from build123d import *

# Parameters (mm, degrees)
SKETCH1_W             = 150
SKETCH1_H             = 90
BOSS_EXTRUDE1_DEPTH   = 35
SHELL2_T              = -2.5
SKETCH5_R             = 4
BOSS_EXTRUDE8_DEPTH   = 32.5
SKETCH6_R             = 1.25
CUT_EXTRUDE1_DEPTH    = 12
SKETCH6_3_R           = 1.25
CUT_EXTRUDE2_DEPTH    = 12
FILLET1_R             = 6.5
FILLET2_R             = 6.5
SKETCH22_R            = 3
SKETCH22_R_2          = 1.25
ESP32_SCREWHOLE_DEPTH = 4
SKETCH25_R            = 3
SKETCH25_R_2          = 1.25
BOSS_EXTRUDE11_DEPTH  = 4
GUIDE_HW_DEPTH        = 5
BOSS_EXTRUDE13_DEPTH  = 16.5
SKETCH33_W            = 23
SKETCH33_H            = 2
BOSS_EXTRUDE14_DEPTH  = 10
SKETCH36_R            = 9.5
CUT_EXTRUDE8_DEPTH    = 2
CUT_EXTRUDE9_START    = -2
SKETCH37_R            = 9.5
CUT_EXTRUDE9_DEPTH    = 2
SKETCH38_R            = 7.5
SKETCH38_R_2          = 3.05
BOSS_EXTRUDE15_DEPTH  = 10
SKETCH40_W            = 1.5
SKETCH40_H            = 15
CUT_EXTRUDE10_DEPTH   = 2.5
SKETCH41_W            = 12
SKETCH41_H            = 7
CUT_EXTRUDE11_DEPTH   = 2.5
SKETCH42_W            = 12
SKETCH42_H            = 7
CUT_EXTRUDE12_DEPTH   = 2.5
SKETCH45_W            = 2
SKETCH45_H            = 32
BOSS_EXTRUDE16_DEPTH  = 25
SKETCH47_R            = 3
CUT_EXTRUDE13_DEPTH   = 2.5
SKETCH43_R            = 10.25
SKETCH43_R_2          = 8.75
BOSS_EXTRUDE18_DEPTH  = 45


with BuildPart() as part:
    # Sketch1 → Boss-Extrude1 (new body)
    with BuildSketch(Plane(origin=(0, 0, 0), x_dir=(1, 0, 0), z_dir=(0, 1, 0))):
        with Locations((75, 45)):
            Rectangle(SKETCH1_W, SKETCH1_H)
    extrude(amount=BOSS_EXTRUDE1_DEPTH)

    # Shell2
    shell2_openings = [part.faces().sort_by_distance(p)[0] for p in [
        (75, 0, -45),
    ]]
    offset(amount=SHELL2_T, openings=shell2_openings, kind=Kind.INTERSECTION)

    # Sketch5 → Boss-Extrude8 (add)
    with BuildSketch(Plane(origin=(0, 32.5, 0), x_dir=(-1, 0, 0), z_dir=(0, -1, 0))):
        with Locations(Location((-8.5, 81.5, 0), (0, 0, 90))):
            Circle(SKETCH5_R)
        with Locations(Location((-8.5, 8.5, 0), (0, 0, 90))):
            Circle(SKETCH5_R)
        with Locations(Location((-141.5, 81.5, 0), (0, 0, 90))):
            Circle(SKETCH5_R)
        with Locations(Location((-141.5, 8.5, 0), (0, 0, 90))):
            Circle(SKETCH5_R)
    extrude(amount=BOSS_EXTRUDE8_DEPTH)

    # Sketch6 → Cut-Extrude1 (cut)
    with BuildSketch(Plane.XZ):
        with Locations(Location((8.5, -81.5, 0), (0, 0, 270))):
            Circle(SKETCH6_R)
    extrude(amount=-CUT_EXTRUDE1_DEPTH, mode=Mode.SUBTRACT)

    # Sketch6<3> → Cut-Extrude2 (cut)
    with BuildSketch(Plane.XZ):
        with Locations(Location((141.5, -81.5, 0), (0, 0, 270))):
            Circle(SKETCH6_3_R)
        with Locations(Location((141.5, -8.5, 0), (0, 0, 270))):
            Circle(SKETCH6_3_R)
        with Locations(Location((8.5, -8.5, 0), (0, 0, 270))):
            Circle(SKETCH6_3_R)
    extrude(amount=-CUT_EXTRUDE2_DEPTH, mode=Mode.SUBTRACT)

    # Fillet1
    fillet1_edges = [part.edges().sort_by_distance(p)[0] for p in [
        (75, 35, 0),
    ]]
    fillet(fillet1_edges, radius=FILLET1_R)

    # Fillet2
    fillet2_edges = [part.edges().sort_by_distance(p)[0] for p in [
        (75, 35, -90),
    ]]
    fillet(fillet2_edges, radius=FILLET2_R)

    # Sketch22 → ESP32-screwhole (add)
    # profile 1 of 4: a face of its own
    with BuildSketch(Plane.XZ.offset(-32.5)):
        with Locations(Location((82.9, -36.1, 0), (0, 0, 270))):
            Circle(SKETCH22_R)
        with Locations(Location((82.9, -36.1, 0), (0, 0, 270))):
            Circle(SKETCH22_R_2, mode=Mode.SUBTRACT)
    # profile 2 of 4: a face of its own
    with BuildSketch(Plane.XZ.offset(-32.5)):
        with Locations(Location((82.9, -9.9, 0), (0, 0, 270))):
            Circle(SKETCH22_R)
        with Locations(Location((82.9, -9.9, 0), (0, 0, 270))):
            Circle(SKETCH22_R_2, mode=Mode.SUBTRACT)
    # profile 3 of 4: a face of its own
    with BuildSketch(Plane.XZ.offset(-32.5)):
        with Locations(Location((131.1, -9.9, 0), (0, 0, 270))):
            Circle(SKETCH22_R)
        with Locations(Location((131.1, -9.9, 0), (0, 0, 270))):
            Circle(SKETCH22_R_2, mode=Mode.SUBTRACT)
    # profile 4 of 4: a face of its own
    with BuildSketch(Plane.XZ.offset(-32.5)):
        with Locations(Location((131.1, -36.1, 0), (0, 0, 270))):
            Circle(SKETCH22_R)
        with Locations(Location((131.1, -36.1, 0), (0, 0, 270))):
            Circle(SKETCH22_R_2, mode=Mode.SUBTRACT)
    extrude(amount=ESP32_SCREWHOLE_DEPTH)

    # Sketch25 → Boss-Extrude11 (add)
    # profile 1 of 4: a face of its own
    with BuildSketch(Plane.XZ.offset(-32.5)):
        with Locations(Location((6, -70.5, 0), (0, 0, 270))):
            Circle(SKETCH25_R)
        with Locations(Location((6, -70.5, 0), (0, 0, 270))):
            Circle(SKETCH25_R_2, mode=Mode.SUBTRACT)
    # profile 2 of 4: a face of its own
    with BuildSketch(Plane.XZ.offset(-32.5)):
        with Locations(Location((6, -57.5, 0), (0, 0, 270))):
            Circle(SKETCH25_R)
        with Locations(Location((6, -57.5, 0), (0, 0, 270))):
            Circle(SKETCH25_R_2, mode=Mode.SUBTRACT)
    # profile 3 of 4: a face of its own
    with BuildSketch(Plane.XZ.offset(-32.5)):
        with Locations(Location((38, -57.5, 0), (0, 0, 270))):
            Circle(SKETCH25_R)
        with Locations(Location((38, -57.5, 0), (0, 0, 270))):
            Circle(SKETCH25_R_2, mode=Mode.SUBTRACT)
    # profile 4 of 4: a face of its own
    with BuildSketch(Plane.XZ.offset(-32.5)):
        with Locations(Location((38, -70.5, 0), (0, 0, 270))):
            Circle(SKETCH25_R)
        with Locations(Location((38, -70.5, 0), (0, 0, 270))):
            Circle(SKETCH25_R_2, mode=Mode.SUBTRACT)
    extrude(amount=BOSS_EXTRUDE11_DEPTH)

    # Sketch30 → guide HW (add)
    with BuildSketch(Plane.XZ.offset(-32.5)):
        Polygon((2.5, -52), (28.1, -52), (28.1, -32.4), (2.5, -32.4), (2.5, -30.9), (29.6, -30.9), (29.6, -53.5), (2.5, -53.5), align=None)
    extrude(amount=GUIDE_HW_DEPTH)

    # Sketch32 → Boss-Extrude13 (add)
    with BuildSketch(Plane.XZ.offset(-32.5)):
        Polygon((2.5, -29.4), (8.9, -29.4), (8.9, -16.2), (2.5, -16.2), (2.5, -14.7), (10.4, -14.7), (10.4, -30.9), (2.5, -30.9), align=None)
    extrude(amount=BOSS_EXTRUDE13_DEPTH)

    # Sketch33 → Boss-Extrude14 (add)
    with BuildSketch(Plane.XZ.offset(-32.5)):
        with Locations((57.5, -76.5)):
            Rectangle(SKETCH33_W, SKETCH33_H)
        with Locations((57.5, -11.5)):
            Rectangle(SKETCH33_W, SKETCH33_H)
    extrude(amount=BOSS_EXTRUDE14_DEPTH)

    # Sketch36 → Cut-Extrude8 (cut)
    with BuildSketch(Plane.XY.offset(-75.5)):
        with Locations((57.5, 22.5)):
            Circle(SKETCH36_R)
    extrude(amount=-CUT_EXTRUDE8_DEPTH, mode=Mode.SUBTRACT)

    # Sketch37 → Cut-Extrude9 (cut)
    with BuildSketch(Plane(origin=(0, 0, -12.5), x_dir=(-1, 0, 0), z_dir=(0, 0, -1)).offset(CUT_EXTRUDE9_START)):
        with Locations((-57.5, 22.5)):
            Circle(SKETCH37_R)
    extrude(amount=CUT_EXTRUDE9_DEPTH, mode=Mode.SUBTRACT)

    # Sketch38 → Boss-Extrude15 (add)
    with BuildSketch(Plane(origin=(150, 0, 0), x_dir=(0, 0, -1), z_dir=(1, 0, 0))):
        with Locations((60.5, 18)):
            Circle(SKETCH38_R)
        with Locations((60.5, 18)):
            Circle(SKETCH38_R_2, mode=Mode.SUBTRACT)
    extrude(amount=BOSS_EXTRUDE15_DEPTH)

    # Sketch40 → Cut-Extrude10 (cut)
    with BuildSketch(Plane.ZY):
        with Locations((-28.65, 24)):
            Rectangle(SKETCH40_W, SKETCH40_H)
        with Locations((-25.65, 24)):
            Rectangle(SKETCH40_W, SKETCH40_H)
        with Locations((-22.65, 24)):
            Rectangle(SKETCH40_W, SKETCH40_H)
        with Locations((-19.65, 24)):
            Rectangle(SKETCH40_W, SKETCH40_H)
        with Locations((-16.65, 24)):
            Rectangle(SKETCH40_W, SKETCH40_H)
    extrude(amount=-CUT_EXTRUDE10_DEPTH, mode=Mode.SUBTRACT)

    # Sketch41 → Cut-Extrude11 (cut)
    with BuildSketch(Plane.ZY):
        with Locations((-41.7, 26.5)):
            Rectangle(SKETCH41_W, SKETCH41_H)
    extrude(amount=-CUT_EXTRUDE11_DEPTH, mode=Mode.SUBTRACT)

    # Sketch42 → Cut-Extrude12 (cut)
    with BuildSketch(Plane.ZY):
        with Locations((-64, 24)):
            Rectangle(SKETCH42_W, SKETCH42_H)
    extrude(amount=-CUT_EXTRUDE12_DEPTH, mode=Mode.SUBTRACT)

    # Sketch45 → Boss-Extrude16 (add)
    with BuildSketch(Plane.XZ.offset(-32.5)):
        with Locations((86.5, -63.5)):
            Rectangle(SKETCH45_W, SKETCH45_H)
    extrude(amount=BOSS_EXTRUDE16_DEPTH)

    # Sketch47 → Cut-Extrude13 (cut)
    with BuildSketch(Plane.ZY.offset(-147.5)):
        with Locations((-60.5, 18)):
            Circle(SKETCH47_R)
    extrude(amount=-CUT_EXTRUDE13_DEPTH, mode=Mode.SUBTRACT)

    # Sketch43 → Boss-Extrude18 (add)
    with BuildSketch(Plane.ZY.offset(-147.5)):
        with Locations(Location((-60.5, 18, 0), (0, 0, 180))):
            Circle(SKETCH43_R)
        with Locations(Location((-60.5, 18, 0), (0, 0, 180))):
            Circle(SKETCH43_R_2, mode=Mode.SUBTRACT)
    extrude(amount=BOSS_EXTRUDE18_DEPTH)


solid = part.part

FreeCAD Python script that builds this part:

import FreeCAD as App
import Part
import Sketcher

V = App.Vector
Q = App.Units.Quantity


def edges_at(feature, points):
    """Names of the edges that pass closest to the given points."""
    edges = feature.Shape.Edges
    near = lambda p: min(range(len(edges)), key=lambda i: edges[i].distToShape(Part.Vertex(*p))[0])
    return sorted({f"Edge{near(p) + 1}" for p in points})


def faces_at(feature, points):
    """Names of the faces that lie closest to the given points."""
    faces = feature.Shape.Faces
    near = lambda p: min(range(len(faces)), key=lambda i: faces[i].distToShape(Part.Vertex(*p))[0])
    return sorted({f"Face{near(p) + 1}" for p in points})


def add_polygon(sketch, points):
    """Adds a closed chain of lines whose ends are joined by coincident constraints."""
    first, n = sketch.GeometryCount, len(points)
    for a, b in zip(points, points[1:] + points[:1]):
        sketch.addGeometry(Part.LineSegment(App.Vector(*a, 0), App.Vector(*b, 0)), False)
    for i in range(n):
        sketch.addConstraint(Sketcher.Constraint("Coincident", first + i, 2, first + (i + 1) % n, 1))

doc = App.newDocument("Part")
params = doc.addObject("Spreadsheet::Sheet", "Params")
for row, (alias, value) in enumerate([
    ("sketch1_width", "150 mm"),
    ("sketch1_height", "90 mm"),
    ("pad1_length", "35 mm"),
    ("thickness_wall", "2.5 mm"),
    ("sketch2_diameter", "8 mm"),
    ("pad2_length", "32.5 mm"),
    ("sketch3_diameter", "2.5 mm"),
    ("pocket1_length", "12 mm"),
    ("sketch4_diameter", "2.5 mm"),
    ("pocket2_length", "12 mm"),
    ("fillet_radius", "6.5 mm"),
    ("fillet2_radius", "6.5 mm"),
    ("sketch5_diameter", "6 mm"),
    ("sketch5_diameter2", "2.5 mm"),
    ("pad3_length", "4 mm"),
    ("sketch6_diameter", "6 mm"),
    ("sketch6_diameter2", "2.5 mm"),
    ("pad4_length", "4 mm"),
    ("sketch7_width", "25.6 mm"),
    ("sketch7_width2", "27.1 mm"),
    ("sketch7_height", "1.5 mm"),
    ("sketch7_height2", "22.6 mm"),
    ("pad5_length", "5 mm"),
    ("sketch8_width", "6.4 mm"),
    ("sketch8_width2", "7.9 mm"),
    ("sketch8_height", "1.5 mm"),
    ("sketch8_height2", "16.2 mm"),
    ("pad6_length", "16.5 mm"),
    ("sketch9_width", "23 mm"),
    ("sketch9_height", "2 mm"),
    ("pad7_length", "10 mm"),
    ("sketch10_diameter", "19 mm"),
    ("pocket3_length", "2 mm"),
    ("sketch11_diameter", "19 mm"),
    ("pocket4_length", "2 mm"),
    ("sketch12_diameter", "15 mm"),
    ("sketch12_diameter2", "6.1 mm"),
    ("pad8_length", "10 mm"),
    ("sketch13_width", "15 mm"),
    ("sketch13_height", "1.5 mm"),
    ("pocket5_length", "2.5 mm"),
    ("sketch14_width", "7 mm"),
    ("sketch14_height", "12 mm"),
    ("pocket6_length", "2.5 mm"),
    ("sketch15_width", "7 mm"),
    ("sketch15_height", "12 mm"),
    ("pocket7_length", "2.5 mm"),
    ("sketch16_width", "2 mm"),
    ("sketch16_height", "32 mm"),
    ("pad9_length", "25 mm"),
    ("sketch17_diameter", "6 mm"),
    ("pocket8_length", "2.5 mm"),
    ("sketch18_diameter", "20.5 mm"),
    ("sketch18_diameter2", "17.5 mm"),
    ("pad10_length", "45 mm"),
], start=1):
    params.set(f"A{row}", alias)
    params.set(f"B{row}", "=" + value)
    params.setAlias(f"B{row}", alias)

body = doc.addObject("PartDesign::Body", "Body")

# Sketch on XZ plane
sketch1 = body.newObject("Sketcher::SketchObject", "Sketch")
sketch1.AttachmentSupport = (doc.getObject("XZ_Plane"), [""])
sketch1.MapMode = "FlatFace"
add_polygon(sketch1, [(0, -90), (0, 0), (150, 0), (150, -90)])  # lines 0-3
sketch1.addConstraint(Sketcher.Constraint("Vertical", 0))
sketch1.addConstraint(Sketcher.Constraint("Horizontal", 1))
sketch1.addConstraint(Sketcher.Constraint("Vertical", 2))
sketch1.addConstraint(Sketcher.Constraint("Horizontal", 3))
sketch1.addConstraint(Sketcher.Constraint("Coincident", 0, 2, -1, 1))
sketch1.addConstraint(Sketcher.Constraint("DistanceX", 1, 1, 1, 2, Q("150 mm")))
sketch1.addConstraint(Sketcher.Constraint("DistanceY", 0, 1, 0, 2, Q("90 mm")))
sketch1.setExpression("Constraints[9]", "Params.sketch1_width")
sketch1.setExpression("Constraints[10]", "Params.sketch1_height")
pad1 = body.newObject("PartDesign::Pad", "Pad")
pad1.Profile = sketch1
pad1.setExpression("Length", "Params.pad1_length")
pad1.Reversed = True
doc.recompute()

thickness = body.newObject("PartDesign::Thickness", "Thickness")
thickness.Base = (pad1, faces_at(pad1, [(75, 0, -45)]))
thickness.setExpression("Value", "Params.thickness_wall")
thickness.Reversed = True
thickness.Join = "Intersection"

# Sketch on XZ plane
sketch2 = body.newObject("Sketcher::SketchObject", "Sketch001")
sketch2.AttachmentSupport = (doc.getObject("XZ_Plane"), [""])
sketch2.MapMode = "FlatFace"
sketch2.AttachmentOffset = App.Placement(V(0, 0, -32.5), App.Rotation())
sketch2.addGeometry(Part.Circle(V(8.5, -81.5, 0), V(0, 0, 1), 4), False)
sketch2.addGeometry(Part.Circle(V(8.5, -8.5, 0), V(0, 0, 1), 4), False)
sketch2.addGeometry(Part.Circle(V(141.5, -81.5, 0), V(0, 0, 1), 4), False)
sketch2.addGeometry(Part.Circle(V(141.5, -8.5, 0), V(0, 0, 1), 4), False)
sketch2.addConstraint(Sketcher.Constraint("Equal", 0, 1))
sketch2.addConstraint(Sketcher.Constraint("Equal", 1, 2))
sketch2.addConstraint(Sketcher.Constraint("Equal", 2, 3))
sketch2.addConstraint(Sketcher.Constraint("Horizontal", 0, 3, 2, 3))
sketch2.addConstraint(Sketcher.Constraint("Horizontal", 1, 3, 3, 3))
sketch2.addConstraint(Sketcher.Constraint("Vertical", 0, 3, 1, 3))
sketch2.addConstraint(Sketcher.Constraint("Vertical", 2, 3, 3, 3))
sketch2.addConstraint(Sketcher.Constraint("Diameter", 0, Q("8 mm")))
sketch2.addConstraint(Sketcher.Constraint("DistanceY", 0, 3, 1, 3, Q("73 mm")))
sketch2.addConstraint(Sketcher.Constraint("DistanceX", 0, 3, 2, 3, Q("133 mm")))
sketch2.addConstraint(Sketcher.Constraint("DistanceX", -1, 1, 0, 3, Q("8.5 mm")))
sketch2.addConstraint(Sketcher.Constraint("DistanceY", 0, 3, -1, 1, Q("81.5 mm")))
sketch2.setExpression("Constraints[7]", "Params.sketch2_diameter")
pad2 = body.newObject("PartDesign::Pad", "Pad001")
pad2.Profile = sketch2
pad2.setExpression("Length", "Params.pad2_length")

# Sketch on XZ plane
sketch3 = body.newObject("Sketcher::SketchObject", "Sketch002")
sketch3.AttachmentSupport = (doc.getObject("XZ_Plane"), [""])
sketch3.MapMode = "FlatFace"
sketch3.addGeometry(Part.Circle(V(8.5, -81.5, 0), V(0, 0, 1), 1.2), False)
sketch3.addConstraint(Sketcher.Constraint("Diameter", 0, Q("2.5 mm")))
sketch3.addConstraint(Sketcher.Constraint("DistanceX", -1, 1, 0, 3, Q("8.5 mm")))
sketch3.addConstraint(Sketcher.Constraint("DistanceY", 0, 3, -1, 1, Q("81.5 mm")))
sketch3.setExpression("Constraints[0]", "Params.sketch3_diameter")
pocket1 = body.newObject("PartDesign::Pocket", "Pocket")
pocket1.Profile = sketch3
pocket1.setExpression("Length", "Params.pocket1_length")

# Sketch on XZ plane
sketch4 = body.newObject("Sketcher::SketchObject", "Sketch003")
sketch4.AttachmentSupport = (doc.getObject("XZ_Plane"), [""])
sketch4.MapMode = "FlatFace"
sketch4.addGeometry(Part.Circle(V(141.5, -81.5, 0), V(0, 0, 1), 1.2), False)
sketch4.addGeometry(Part.Circle(V(141.5, -8.5, 0), V(0, 0, 1), 1.2), False)
sketch4.addGeometry(Part.Circle(V(8.5, -8.5, 0), V(0, 0, 1), 1.2), False)
sketch4.addConstraint(Sketcher.Constraint("Equal", 0, 1))
sketch4.addConstraint(Sketcher.Constraint("Equal", 1, 2))
sketch4.addConstraint(Sketcher.Constraint("Horizontal", 1, 3, 2, 3))
sketch4.addConstraint(Sketcher.Constraint("Vertical", 0, 3, 1, 3))
sketch4.addConstraint(Sketcher.Constraint("Diameter", 0, Q("2.5 mm")))
sketch4.addConstraint(Sketcher.Constraint("DistanceY", 0, 3, 1, 3, Q("73 mm")))
sketch4.addConstraint(Sketcher.Constraint("DistanceX", 2, 3, 1, 3, Q("133 mm")))
sketch4.addConstraint(Sketcher.Constraint("DistanceX", -1, 1, 0, 3, Q("141.5 mm")))
sketch4.addConstraint(Sketcher.Constraint("DistanceY", 0, 3, -1, 1, Q("81.5 mm")))
sketch4.setExpression("Constraints[4]", "Params.sketch4_diameter")
pocket2 = body.newObject("PartDesign::Pocket", "Pocket001")
pocket2.Profile = sketch4
pocket2.setExpression("Length", "Params.pocket2_length")
doc.recompute()

fillet = body.newObject("PartDesign::Fillet", "Fillet")
fillet.Base = (pocket2, edges_at(pocket2, [(75, 35, 0)]))
fillet.setExpression("Radius", "Params.fillet_radius")
doc.recompute()

fillet2 = body.newObject("PartDesign::Fillet", "Fillet001")
fillet2.Base = (fillet, edges_at(fillet, [(75, 35, -90)]))
fillet2.setExpression("Radius", "Params.fillet2_radius")

# Sketch on XZ plane
sketch5 = body.newObject("Sketcher::SketchObject", "Sketch004")
sketch5.AttachmentSupport = (doc.getObject("XZ_Plane"), [""])
sketch5.MapMode = "FlatFace"
sketch5.AttachmentOffset = App.Placement(V(0, 0, -32.5), App.Rotation())
sketch5.addGeometry(Part.Circle(V(82.9, -36.1, 0), V(0, 0, 1), 3), False)
sketch5.addGeometry(Part.Circle(V(82.9, -36.1, 0), V(0, 0, 1), 1.2), False)
sketch5.addGeometry(Part.Circle(V(82.9, -9.9, 0), V(0, 0, 1), 3), False)
sketch5.addGeometry(Part.Circle(V(82.9, -9.9, 0), V(0, 0, 1), 1.2), False)
sketch5.addGeometry(Part.Circle(V(131.1, -9.9, 0), V(0, 0, 1), 3), False)
sketch5.addGeometry(Part.Circle(V(131.1, -9.9, 0), V(0, 0, 1), 1.2), False)
sketch5.addGeometry(Part.Circle(V(131.1, -36.1, 0), V(0, 0, 1), 3), False)
sketch5.addGeometry(Part.Circle(V(131.1, -36.1, 0), V(0, 0, 1), 1.2), False)
sketch5.addConstraint(Sketcher.Constraint("Coincident", 1, 3, 0, 3))
sketch5.addConstraint(Sketcher.Constraint("Coincident", 3, 3, 2, 3))
sketch5.addConstraint(Sketcher.Constraint("Coincident", 5, 3, 4, 3))
sketch5.addConstraint(Sketcher.Constraint("Coincident", 7, 3, 6, 3))
sketch5.addConstraint(Sketcher.Constraint("Equal", 0, 2))
sketch5.addConstraint(Sketcher.Constraint("Equal", 1, 3))
sketch5.addConstraint(Sketcher.Constraint("Equal", 2, 4))
sketch5.addConstraint(Sketcher.Constraint("Equal", 3, 5))
sketch5.addConstraint(Sketcher.Constraint("Equal", 4, 6))
sketch5.addConstraint(Sketcher.Constraint("Equal", 5, 7))
sketch5.addConstraint(Sketcher.Constraint("Horizontal", 3, 3, 4, 3))
sketch5.addConstraint(Sketcher.Constraint("Horizontal", 1, 3, 6, 3))
sketch5.addConstraint(Sketcher.Constraint("Vertical", 1, 3, 2, 3))
sketch5.addConstraint(Sketcher.Constraint("Vertical", 5, 3, 6, 3))
sketch5.addConstraint(Sketcher.Constraint("Diameter", 0, Q("6 mm")))
sketch5.addConstraint(Sketcher.Constraint("Diameter", 1, Q("2.5 mm")))
sketch5.addConstraint(Sketcher.Constraint("DistanceX", -1, 1, 0, 3, Q("82.9 mm")))
sketch5.addConstraint(Sketcher.Constraint("DistanceY", 0, 3, -1, 1, Q("36.1 mm")))
sketch5.addConstraint(Sketcher.Constraint("DistanceY", 2, 3, -1, 1, Q("9.9 mm")))
sketch5.addConstraint(Sketcher.Constraint("DistanceX", -1, 1, 4, 3, Q("131.1 mm")))
sketch5.setExpression("Constraints[14]", "Params.sketch5_diameter")
sketch5.setExpression("Constraints[15]", "Params.sketch5_diameter2")
pad3 = body.newObject("PartDesign::Pad", "Pad002")
pad3.Profile = sketch5
pad3.setExpression("Length", "Params.pad3_length")

# Sketch on XZ plane
sketch6 = body.newObject("Sketcher::SketchObject", "Sketch005")
sketch6.AttachmentSupport = (doc.getObject("XZ_Plane"), [""])
sketch6.MapMode = "FlatFace"
sketch6.AttachmentOffset = App.Placement(V(0, 0, -32.5), App.Rotation())
sketch6.addGeometry(Part.Circle(V(6, -70.5, 0), V(0, 0, 1), 3), False)
sketch6.addGeometry(Part.Circle(V(6, -70.5, 0), V(0, 0, 1), 1.2), False)
sketch6.addGeometry(Part.Circle(V(6, -57.5, 0), V(0, 0, 1), 3), False)
sketch6.addGeometry(Part.Circle(V(6, -57.5, 0), V(0, 0, 1), 1.2), False)
sketch6.addGeometry(Part.Circle(V(38, -57.5, 0), V(0, 0, 1), 3), False)
sketch6.addGeometry(Part.Circle(V(38, -57.5, 0), V(0, 0, 1), 1.2), False)
sketch6.addGeometry(Part.Circle(V(38, -70.5, 0), V(0, 0, 1), 3), False)
sketch6.addGeometry(Part.Circle(V(38, -70.5, 0), V(0, 0, 1), 1.2), False)
sketch6.addConstraint(Sketcher.Constraint("Coincident", 1, 3, 0, 3))
sketch6.addConstraint(Sketcher.Constraint("Coincident", 3, 3, 2, 3))
sketch6.addConstraint(Sketcher.Constraint("Coincident", 5, 3, 4, 3))
sketch6.addConstraint(Sketcher.Constraint("Coincident", 7, 3, 6, 3))
sketch6.addConstraint(Sketcher.Constraint("Equal", 0, 2))
sketch6.addConstraint(Sketcher.Constraint("Equal", 1, 3))
sketch6.addConstraint(Sketcher.Constraint("Equal", 2, 4))
sketch6.addConstraint(Sketcher.Constraint("Equal", 3, 5))
sketch6.addConstraint(Sketcher.Constraint("Equal", 4, 6))
sketch6.addConstraint(Sketcher.Constraint("Equal", 5, 7))
sketch6.addConstraint(Sketcher.Constraint("Horizontal", 3, 3, 4, 3))
sketch6.addConstraint(Sketcher.Constraint("Horizontal", 1, 3, 6, 3))
sketch6.addConstraint(Sketcher.Constraint("Vertical", 1, 3, 2, 3))
sketch6.addConstraint(Sketcher.Constraint("Vertical", 5, 3, 6, 3))
sketch6.addConstraint(Sketcher.Constraint("Diameter", 0, Q("6 mm")))
sketch6.addConstraint(Sketcher.Constraint("Diameter", 1, Q("2.5 mm")))
sketch6.addConstraint(Sketcher.Constraint("DistanceX", -1, 1, 0, 3, Q("6 mm")))
sketch6.addConstraint(Sketcher.Constraint("DistanceX", -1, 1, 4, 3, Q("38 mm")))
sketch6.addConstraint(Sketcher.Constraint("DistanceY", 0, 3, 2, 3, Q("13 mm")))
sketch6.addConstraint(Sketcher.Constraint("DistanceY", 0, 3, -1, 1, Q("70.5 mm")))
sketch6.setExpression("Constraints[14]", "Params.sketch6_diameter")
sketch6.setExpression("Constraints[15]", "Params.sketch6_diameter2")
pad4 = body.newObject("PartDesign::Pad", "Pad003")
pad4.Profile = sketch6
pad4.setExpression("Length", "Params.pad4_length")

# Sketch on XZ plane
sketch7 = body.newObject("Sketcher::SketchObject", "Sketch006")
sketch7.AttachmentSupport = (doc.getObject("XZ_Plane"), [""])
sketch7.MapMode = "FlatFace"
sketch7.AttachmentOffset = App.Placement(V(0, 0, -32.5), App.Rotation())
add_polygon(sketch7, [(28.1, -52), (2.5, -52), (2.5, -53.5), (29.6, -53.5), (29.6, -30.9), (2.5, -30.9), (2.5, -32.4), (28.1, -32.4)])  # lines 0-7
sketch7.addConstraint(Sketcher.Constraint("Horizontal", 0))
sketch7.addConstraint(Sketcher.Constraint("Vertical", 1))
sketch7.addConstraint(Sketcher.Constraint("Horizontal", 2))
sketch7.addConstraint(Sketcher.Constraint("Vertical", 3))
sketch7.addConstraint(Sketcher.Constraint("Horizontal", 4))
sketch7.addConstraint(Sketcher.Constraint("Vertical", 5))
sketch7.addConstraint(Sketcher.Constraint("Horizontal", 6))
sketch7.addConstraint(Sketcher.Constraint("Vertical", 7))
sketch7.addConstraint(Sketcher.Constraint("Vertical", 1, 2, 4, 2))
sketch7.addConstraint(Sketcher.Constraint("Equal", 1, 5))
sketch7.addConstraint(Sketcher.Constraint("DistanceX", 0, 2, 0, 1, Q("25.6 mm")))
sketch7.addConstraint(Sketcher.Constraint("DistanceX", 2, 1, 2, 2, Q("27.1 mm")))
sketch7.addConstraint(Sketcher.Constraint("DistanceY", 1, 2, 1, 1, Q("1.5 mm")))
sketch7.addConstraint(Sketcher.Constraint("DistanceY", 3, 1, 3, 2, Q("22.6 mm")))
sketch7.addConstraint(Sketcher.Constraint("DistanceY", 0, 2, -1, 1, Q("52 mm")))
sketch7.addConstraint(Sketcher.Constraint("DistanceX", -1, 1, 0, 2, Q("2.5 mm")))
sketch7.setExpression("Constraints[18]", "Params.sketch7_width")
sketch7.setExpression("Constraints[19]", "Params.sketch7_width2")
sketch7.setExpression("Constraints[20]", "Params.sketch7_height")
sketch7.setExpression("Constraints[21]", "Params.sketch7_height2")
pad5 = body.newObject("PartDesign::Pad", "Pad004")
pad5.Profile = sketch7
pad5.setExpression("Length", "Params.pad5_length")

# Sketch on XZ plane
sketch8 = body.newObject("Sketcher::SketchObject", "Sketch007")
sketch8.AttachmentSupport = (doc.getObject("XZ_Plane"), [""])
sketch8.MapMode = "FlatFace"
sketch8.AttachmentOffset = App.Placement(V(0, 0, -32.5), App.Rotation())
add_polygon(sketch8, [(8.9, -29.4), (2.5, -29.4), (2.5, -30.9), (10.4, -30.9), (10.4, -14.7), (2.5, -14.7), (2.5, -16.2), (8.9, -16.2)])  # lines 0-7
sketch8.addConstraint(Sketcher.Constraint("Horizontal", 0))
sketch8.addConstraint(Sketcher.Constraint("Vertical", 1))
sketch8.addConstraint(Sketcher.Constraint("Horizontal", 2))
sketch8.addConstraint(Sketcher.Constraint("Vertical", 3))
sketch8.addConstraint(Sketcher.Constraint("Horizontal", 4))
sketch8.addConstraint(Sketcher.Constraint("Vertical", 5))
sketch8.addConstraint(Sketcher.Constraint("Horizontal", 6))
sketch8.addConstraint(Sketcher.Constraint("Vertical", 7))
sketch8.addConstraint(Sketcher.Constraint("Vertical", 1, 2, 4, 2))
sketch8.addConstraint(Sketcher.Constraint("Equal", 1, 5))
sketch8.addConstraint(Sketcher.Constraint("DistanceX", 0, 2, 0, 1, Q("6.4 mm")))
sketch8.addConstraint(Sketcher.Constraint("DistanceX", 2, 1, 2, 2, Q("7.9 mm")))
sketch8.addConstraint(Sketcher.Constraint("DistanceY", 1, 2, 1, 1, Q("1.5 mm")))
sketch8.addConstraint(Sketcher.Constraint("DistanceY", 3, 1, 3, 2, Q("16.2 mm")))
sketch8.addConstraint(Sketcher.Constraint("DistanceX", -1, 1, 0, 2, Q("2.5 mm")))
sketch8.addConstraint(Sketcher.Constraint("DistanceY", 0, 2, -1, 1, Q("29.4 mm")))
sketch8.setExpression("Constraints[18]", "Params.sketch8_width")
sketch8.setExpression("Constraints[19]", "Params.sketch8_width2")
sketch8.setExpression("Constraints[20]", "Params.sketch8_height")
sketch8.setExpression("Constraints[21]", "Params.sketch8_height2")
pad6 = body.newObject("PartDesign::Pad", "Pad005")
pad6.Profile = sketch8
pad6.setExpression("Length", "Params.pad6_length")

# Sketch on XZ plane
sketch9 = body.newObject("Sketcher::SketchObject", "Sketch008")
sketch9.AttachmentSupport = (doc.getObject("XZ_Plane"), [""])
sketch9.MapMode = "FlatFace"
sketch9.AttachmentOffset = App.Placement(V(0, 0, -32.5), App.Rotation())
add_polygon(sketch9, [(46, -75.5), (46, -77.5), (69, -77.5), (69, -75.5)])  # lines 0-3
add_polygon(sketch9, [(46, -10.5), (46, -12.5), (69, -12.5), (69, -10.5)])  # lines 4-7
sketch9.addConstraint(Sketcher.Constraint("Vertical", 0))
sketch9.addConstraint(Sketcher.Constraint("Horizontal", 1))
sketch9.addConstraint(Sketcher.Constraint("Vertical", 2))
sketch9.addConstraint(Sketcher.Constraint("Horizontal", 3))
sketch9.addConstraint(Sketcher.Constraint("Vertical", 4))
sketch9.addConstraint(Sketcher.Constraint("Horizontal", 5))
sketch9.addConstraint(Sketcher.Constraint("Vertical", 6))
sketch9.addConstraint(Sketcher.Constraint("Horizontal", 7))
sketch9.addConstraint(Sketcher.Constraint("Vertical", 3, 2, 4, 2))
sketch9.addConstraint(Sketcher.Constraint("Vertical", 2, 2, 5, 2))
sketch9.addConstraint(Sketcher.Constraint("Equal", 2, 4))
sketch9.addConstraint(Sketcher.Constraint("DistanceX", 1, 1, 1, 2, Q("23 mm")))
sketch9.addConstraint(Sketcher.Constraint("DistanceY", 0, 2, 0, 1, Q("2 mm")))
sketch9.addConstraint(Sketcher.Constraint("DistanceX", -1, 1, 0, 2, Q("46 mm")))
sketch9.addConstraint(Sketcher.Constraint("DistanceY", 3, 2, 4, 2, Q("63 mm")))
sketch9.addConstraint(Sketcher.Constraint("DistanceY", 0, 2, -1, 1, Q("77.5 mm")))
sketch9.setExpression("Constraints[19]", "Params.sketch9_width")
sketch9.setExpression("Constraints[20]", "Params.sketch9_height")
pad7 = body.newObject("PartDesign::Pad", "Pad006")
pad7.Profile = sketch9
pad7.setExpression("Length", "Params.pad7_length")

# Sketch on XY plane
sketch10 = body.newObject("Sketcher::SketchObject", "Sketch009")
sketch10.AttachmentSupport = (doc.getObject("XY_Plane"), [""])
sketch10.MapMode = "FlatFace"
sketch10.AttachmentOffset = App.Placement(V(0, 0, -75.5), App.Rotation())
sketch10.addGeometry(Part.Circle(V(58, 22, 0), V(0, 0, 1), 10), False)
sketch10.addConstraint(Sketcher.Constraint("Diameter", 0, Q("19 mm")))
sketch10.addConstraint(Sketcher.Constraint("DistanceX", -1, 1, 0, 3, Q("57.5 mm")))
sketch10.addConstraint(Sketcher.Constraint("DistanceY", -1, 1, 0, 3, Q("22.5 mm")))
sketch10.setExpression("Constraints[0]", "Params.sketch10_diameter")
pocket3 = body.newObject("PartDesign::Pocket", "Pocket002")
pocket3.Profile = sketch10
pocket3.setExpression("Length", "Params.pocket3_length")

# Sketch on XY plane
sketch11 = body.newObject("Sketcher::SketchObject", "Sketch010")
sketch11.AttachmentSupport = (doc.getObject("XY_Plane"), [""])
sketch11.MapMode = "FlatFace"
sketch11.AttachmentOffset = App.Placement(V(0, 0, -10.5), App.Rotation())
sketch11.addGeometry(Part.Circle(V(58, 22, 0), V(0, 0, 1), 10), False)
sketch11.addConstraint(Sketcher.Constraint("Diameter", 0, Q("19 mm")))
sketch11.addConstraint(Sketcher.Constraint("DistanceX", -1, 1, 0, 3, Q("57.5 mm")))
sketch11.addConstraint(Sketcher.Constraint("DistanceY", -1, 1, 0, 3, Q("22.5 mm")))
sketch11.setExpression("Constraints[0]", "Params.sketch11_diameter")
pocket4 = body.newObject("PartDesign::Pocket", "Pocket003")
pocket4.Profile = sketch11
pocket4.setExpression("Length", "Params.pocket4_length")

# Sketch on YZ plane
sketch12 = body.newObject("Sketcher::SketchObject", "Sketch011")
sketch12.AttachmentSupport = (doc.getObject("YZ_Plane"), [""])
sketch12.MapMode = "FlatFace"
sketch12.AttachmentOffset = App.Placement(V(0, 0, 150), App.Rotation())
sketch12.addGeometry(Part.Circle(V(18, -60.5, 0), V(0, 0, 1), 7.5), False)
sketch12.addGeometry(Part.Circle(V(18, -60.5, 0), V(0, 0, 1), 3), False)
sketch12.addConstraint(Sketcher.Constraint("Coincident", 1, 3, 0, 3))
sketch12.addConstraint(Sketcher.Constraint("Diameter", 0, Q("15 mm")))
sketch12.addConstraint(Sketcher.Constraint("Diameter", 1, Q("6.1 mm")))
sketch12.addConstraint(Sketcher.Constraint("DistanceX", -1, 1, 0, 3, Q("18 mm")))
sketch12.addConstraint(Sketcher.Constraint("DistanceY", 0, 3, -1, 1, Q("60.5 mm")))
sketch12.setExpression("Constraints[1]", "Params.sketch12_diameter")
sketch12.setExpression("Constraints[2]", "Params.sketch12_diameter2")
pad8 = body.newObject("PartDesign::Pad", "Pad007")
pad8.Profile = sketch12
pad8.setExpression("Length", "Params.pad8_length")

# Sketch on YZ plane
sketch13 = body.newObject("Sketcher::SketchObject", "Sketch012")
sketch13.AttachmentSupport = (doc.getObject("YZ_Plane"), [""])
sketch13.MapMode = "FlatFace"
add_polygon(sketch13, [(31.5, -29.4), (16.5, -29.4), (16.5, -27.9), (31.5, -27.9)])  # lines 0-3
add_polygon(sketch13, [(31.5, -26.4), (16.5, -26.4), (16.5, -24.9), (31.5, -24.9)])  # lines 4-7
add_polygon(sketch13, [(31.5, -23.4), (16.5, -23.4), (16.5, -21.9), (31.5, -21.9)])  # lines 8-11
add_polygon(sketch13, [(31.5, -20.4), (16.5, -20.4), (16.5, -18.9), (31.5, -18.9)])  # lines 12-15
add_polygon(sketch13, [(31.5, -17.4), (16.5, -17.4), (16.5, -15.9), (31.5, -15.9)])  # lines 16-19
sketch13.addConstraint(Sketcher.Constraint("Horizontal", 0))
sketch13.addConstraint(Sketcher.Constraint("Vertical", 1))
sketch13.addConstraint(Sketcher.Constraint("Horizontal", 2))
sketch13.addConstraint(Sketcher.Constraint("Vertical", 3))
sketch13.addConstraint(Sketcher.Constraint("Horizontal", 4))
sketch13.addConstraint(Sketcher.Constraint("Vertical", 5))
sketch13.addConstraint(Sketcher.Constraint("Horizontal", 6))
sketch13.addConstraint(Sketcher.Constraint("Vertical", 7))
sketch13.addConstraint(Sketcher.Constraint("Horizontal", 8))
sketch13.addConstraint(Sketcher.Constraint("Vertical", 9))
sketch13.addConstraint(Sketcher.Constraint("Horizontal", 10))
sketch13.addConstraint(Sketcher.Constraint("Vertical", 11))
sketch13.addConstraint(Sketcher.Constraint("Horizontal", 12))
sketch13.addConstraint(Sketcher.Constraint("Vertical", 13))
sketch13.addConstraint(Sketcher.Constraint("Horizontal", 14))
sketch13.addConstraint(Sketcher.Constraint("Vertical", 15))
sketch13.addConstraint(Sketcher.Constraint("Horizontal", 16))
sketch13.addConstraint(Sketcher.Constraint("Vertical", 17))
sketch13.addConstraint(Sketcher.Constraint("Horizontal", 18))
sketch13.addConstraint(Sketcher.Constraint("Vertical", 19))
sketch13.addConstraint(Sketcher.Constraint("Vertical", 1, 2, 4, 2))
sketch13.addConstraint(Sketcher.Constraint("Vertical", 3, 2, 6, 2))
sketch13.addConstraint(Sketcher.Constraint("Vertical", 5, 2, 8, 2))
sketch13.addConstraint(Sketcher.Constraint("Vertical", 7, 2, 10, 2))
sketch13.addConstraint(Sketcher.Constraint("Vertical", 9, 2, 12, 2))
sketch13.addConstraint(Sketcher.Constraint("Vertical", 11, 2, 14, 2))
sketch13.addConstraint(Sketcher.Constraint("Vertical", 13, 2, 16, 2))
sketch13.addConstraint(Sketcher.Constraint("Vertical", 15, 2, 18, 2))
sketch13.addConstraint(Sketcher.Constraint("Equal", 3, 5))
sketch13.addConstraint(Sketcher.Constraint("Equal", 7, 9))
sketch13.addConstraint(Sketcher.Constraint("Equal", 11, 13))
sketch13.addConstraint(Sketcher.Constraint("Equal", 15, 17))
sketch13.addConstraint(Sketcher.Constraint("DistanceX", 0, 2, 0, 1, Q("15 mm")))
sketch13.addConstraint(Sketcher.Constraint("DistanceY", 1, 1, 1, 2, Q("1.5 mm")))
sketch13.addConstraint(Sketcher.Constraint("DistanceY", 0, 2, 4, 2, Q("3 mm")))
sketch13.addConstraint(Sketcher.Constraint("DistanceY", 4, 2, 8, 2, Q("3 mm")))
sketch13.addConstraint(Sketcher.Constraint("DistanceY", 8, 2, 12, 2, Q("3 mm")))
sketch13.addConstraint(Sketcher.Constraint("DistanceY", 12, 2, 16, 2, Q("3 mm")))
sketch13.addConstraint(Sketcher.Constraint("DistanceX", -1, 1, 0, 2, Q("16.5 mm")))
sketch13.addConstraint(Sketcher.Constraint("DistanceY", 0, 2, -1, 1, Q("29.4 mm")))
sketch13.setExpression("Constraints[52]", "Params.sketch13_width")
sketch13.setExpression("Constraints[53]", "Params.sketch13_height")
pocket5 = body.newObject("PartDesign::Pocket", "Pocket004")
pocket5.Profile = sketch13
pocket5.setExpression("Length", "Params.pocket5_length")
pocket5.Reversed = True

# Sketch on YZ plane
sketch14 = body.newObject("Sketcher::SketchObject", "Sketch013")
sketch14.AttachmentSupport = (doc.getObject("YZ_Plane"), [""])
sketch14.MapMode = "FlatFace"
add_polygon(sketch14, [(30, -48), (23, -48), (23, -36), (30, -36)])  # lines 0-3
sketch14.addConstraint(Sketcher.Constraint("Horizontal", 0))
sketch14.addConstraint(Sketcher.Constraint("Vertical", 1))
sketch14.addConstraint(Sketcher.Constraint("Horizontal", 2))
sketch14.addConstraint(Sketcher.Constraint("Vertical", 3))
sketch14.addConstraint(Sketcher.Constraint("DistanceX", 0, 2, 0, 1, Q("7 mm")))
sketch14.addConstraint(Sketcher.Constraint("DistanceY", 1, 1, 1, 2, Q("12 mm")))
sketch14.addConstraint(Sketcher.Constraint("DistanceX", -1, 1, 0, 2, Q("23 mm")))
sketch14.addConstraint(Sketcher.Constraint("DistanceY", 0, 2, -1, 1, Q("47.7 mm")))
sketch14.setExpression("Constraints[8]", "Params.sketch14_width")
sketch14.setExpression("Constraints[9]", "Params.sketch14_height")
pocket6 = body.newObject("PartDesign::Pocket", "Pocket005")
pocket6.Profile = sketch14
pocket6.setExpression("Length", "Params.pocket6_length")
pocket6.Reversed = True

# Sketch on YZ plane
sketch15 = body.newObject("Sketcher::SketchObject", "Sketch014")
sketch15.AttachmentSupport = (doc.getObject("YZ_Plane"), [""])
sketch15.MapMode = "FlatFace"
add_polygon(sketch15, [(28, -70), (20, -70), (20, -58), (28, -58)])  # lines 0-3
sketch15.addConstraint(Sketcher.Constraint("Horizontal", 0))
sketch15.addConstraint(Sketcher.Constraint("Vertical", 1))
sketch15.addConstraint(Sketcher.Constraint("Horizontal", 2))
sketch15.addConstraint(Sketcher.Constraint("Vertical", 3))
sketch15.addConstraint(Sketcher.Constraint("DistanceX", 0, 2, 0, 1, Q("7 mm")))
sketch15.addConstraint(Sketcher.Constraint("DistanceY", 1, 1, 1, 2, Q("12 mm")))
sketch15.addConstraint(Sketcher.Constraint("DistanceY", 0, 2, -1, 1, Q("70 mm")))
sketch15.addConstraint(Sketcher.Constraint("DistanceX", -1, 1, 0, 2, Q("20.5 mm")))
sketch15.setExpression("Constraints[8]", "Params.sketch15_width")
sketch15.setExpression("Constraints[9]", "Params.sketch15_height")
pocket7 = body.newObject("PartDesign::Pocket", "Pocket006")
pocket7.Profile = sketch15
pocket7.setExpression("Length", "Params.pocket7_length")
pocket7.Reversed = True

# Sketch on XZ plane
sketch16 = body.newObject("Sketcher::SketchObject", "Sketch015")
sketch16.AttachmentSupport = (doc.getObject("XZ_Plane"), [""])
sketch16.MapMode = "FlatFace"
sketch16.AttachmentOffset = App.Placement(V(0, 0, -32.5), App.Rotation())
add_polygon(sketch16, [(85.5, -47.5), (85.5, -79.5), (87.5, -79.5), (87.5, -47.5)])  # lines 0-3
sketch16.addConstraint(Sketcher.Constraint("Vertical", 0))
sketch16.addConstraint(Sketcher.Constraint("Horizontal", 1))
sketch16.addConstraint(Sketcher.Constraint("Vertical", 2))
sketch16.addConstraint(Sketcher.Constraint("Horizontal", 3))
sketch16.addConstraint(Sketcher.Constraint("DistanceX", 1, 1, 1, 2, Q("2 mm")))
sketch16.addConstraint(Sketcher.Constraint("DistanceY", 0, 2, 0, 1, Q("32 mm")))
sketch16.addConstraint(Sketcher.Constraint("DistanceX", -1, 1, 0, 2, Q("85.5 mm")))
sketch16.addConstraint(Sketcher.Constraint("DistanceY", 0, 2, -1, 1, Q("79.5 mm")))
sketch16.setExpression("Constraints[8]", "Params.sketch16_width")
sketch16.setExpression("Constraints[9]", "Params.sketch16_height")
pad9 = body.newObject("PartDesign::Pad", "Pad008")
pad9.Profile = sketch16
pad9.setExpression("Length", "Params.pad9_length")

# Sketch on YZ plane
sketch17 = body.newObject("Sketcher::SketchObject", "Sketch016")
sketch17.AttachmentSupport = (doc.getObject("YZ_Plane"), [""])
sketch17.MapMode = "FlatFace"
sketch17.AttachmentOffset = App.Placement(V(0, 0, 147.5), App.Rotation())
sketch17.addGeometry(Part.Circle(V(18, -60.5, 0), V(0, 0, 1), 3), False)
sketch17.addConstraint(Sketcher.Constraint("Diameter", 0, Q("6 mm")))
sketch17.addConstraint(Sketcher.Constraint("DistanceX", -1, 1, 0, 3, Q("18 mm")))
sketch17.addConstraint(Sketcher.Constraint("DistanceY", 0, 3, -1, 1, Q("60.5 mm")))
sketch17.setExpression("Constraints[0]", "Params.sketch17_diameter")
pocket8 = body.newObject("PartDesign::Pocket", "Pocket007")
pocket8.Profile = sketch17
pocket8.setExpression("Length", "Params.pocket8_length")
pocket8.Reversed = True

# Sketch on YZ plane
sketch18 = body.newObject("Sketcher::SketchObject", "Sketch017")
sketch18.AttachmentSupport = (doc.getObject("YZ_Plane"), [""])
sketch18.MapMode = "FlatFace"
sketch18.AttachmentOffset = App.Placement(V(0, 0, 147.5), App.Rotation())
sketch18.addGeometry(Part.Circle(V(18, -60, 0), V(0, 0, 1), 10), False)
sketch18.addGeometry(Part.Circle(V(18, -60, 0), V(0, 0, 1), 9), False)
sketch18.addConstraint(Sketcher.Constraint("Coincident", 1, 3, 0, 3))
sketch18.addConstraint(Sketcher.Constraint("Diameter", 0, Q("20.5 mm")))
sketch18.addConstraint(Sketcher.Constraint("Diameter", 1, Q("17.5 mm")))
sketch18.addConstraint(Sketcher.Constraint("DistanceX", -1, 1, 0, 3, Q("18 mm")))
sketch18.addConstraint(Sketcher.Constraint("DistanceY", 0, 3, -1, 1, Q("60.5 mm")))
sketch18.setExpression("Constraints[1]", "Params.sketch18_diameter")
sketch18.setExpression("Constraints[2]", "Params.sketch18_diameter2")
pad10 = body.newObject("PartDesign::Pad", "Pad009")
pad10.Profile = sketch18
pad10.setExpression("Length", "Params.pad10_length")
pad10.Reversed = True

doc.recompute()
